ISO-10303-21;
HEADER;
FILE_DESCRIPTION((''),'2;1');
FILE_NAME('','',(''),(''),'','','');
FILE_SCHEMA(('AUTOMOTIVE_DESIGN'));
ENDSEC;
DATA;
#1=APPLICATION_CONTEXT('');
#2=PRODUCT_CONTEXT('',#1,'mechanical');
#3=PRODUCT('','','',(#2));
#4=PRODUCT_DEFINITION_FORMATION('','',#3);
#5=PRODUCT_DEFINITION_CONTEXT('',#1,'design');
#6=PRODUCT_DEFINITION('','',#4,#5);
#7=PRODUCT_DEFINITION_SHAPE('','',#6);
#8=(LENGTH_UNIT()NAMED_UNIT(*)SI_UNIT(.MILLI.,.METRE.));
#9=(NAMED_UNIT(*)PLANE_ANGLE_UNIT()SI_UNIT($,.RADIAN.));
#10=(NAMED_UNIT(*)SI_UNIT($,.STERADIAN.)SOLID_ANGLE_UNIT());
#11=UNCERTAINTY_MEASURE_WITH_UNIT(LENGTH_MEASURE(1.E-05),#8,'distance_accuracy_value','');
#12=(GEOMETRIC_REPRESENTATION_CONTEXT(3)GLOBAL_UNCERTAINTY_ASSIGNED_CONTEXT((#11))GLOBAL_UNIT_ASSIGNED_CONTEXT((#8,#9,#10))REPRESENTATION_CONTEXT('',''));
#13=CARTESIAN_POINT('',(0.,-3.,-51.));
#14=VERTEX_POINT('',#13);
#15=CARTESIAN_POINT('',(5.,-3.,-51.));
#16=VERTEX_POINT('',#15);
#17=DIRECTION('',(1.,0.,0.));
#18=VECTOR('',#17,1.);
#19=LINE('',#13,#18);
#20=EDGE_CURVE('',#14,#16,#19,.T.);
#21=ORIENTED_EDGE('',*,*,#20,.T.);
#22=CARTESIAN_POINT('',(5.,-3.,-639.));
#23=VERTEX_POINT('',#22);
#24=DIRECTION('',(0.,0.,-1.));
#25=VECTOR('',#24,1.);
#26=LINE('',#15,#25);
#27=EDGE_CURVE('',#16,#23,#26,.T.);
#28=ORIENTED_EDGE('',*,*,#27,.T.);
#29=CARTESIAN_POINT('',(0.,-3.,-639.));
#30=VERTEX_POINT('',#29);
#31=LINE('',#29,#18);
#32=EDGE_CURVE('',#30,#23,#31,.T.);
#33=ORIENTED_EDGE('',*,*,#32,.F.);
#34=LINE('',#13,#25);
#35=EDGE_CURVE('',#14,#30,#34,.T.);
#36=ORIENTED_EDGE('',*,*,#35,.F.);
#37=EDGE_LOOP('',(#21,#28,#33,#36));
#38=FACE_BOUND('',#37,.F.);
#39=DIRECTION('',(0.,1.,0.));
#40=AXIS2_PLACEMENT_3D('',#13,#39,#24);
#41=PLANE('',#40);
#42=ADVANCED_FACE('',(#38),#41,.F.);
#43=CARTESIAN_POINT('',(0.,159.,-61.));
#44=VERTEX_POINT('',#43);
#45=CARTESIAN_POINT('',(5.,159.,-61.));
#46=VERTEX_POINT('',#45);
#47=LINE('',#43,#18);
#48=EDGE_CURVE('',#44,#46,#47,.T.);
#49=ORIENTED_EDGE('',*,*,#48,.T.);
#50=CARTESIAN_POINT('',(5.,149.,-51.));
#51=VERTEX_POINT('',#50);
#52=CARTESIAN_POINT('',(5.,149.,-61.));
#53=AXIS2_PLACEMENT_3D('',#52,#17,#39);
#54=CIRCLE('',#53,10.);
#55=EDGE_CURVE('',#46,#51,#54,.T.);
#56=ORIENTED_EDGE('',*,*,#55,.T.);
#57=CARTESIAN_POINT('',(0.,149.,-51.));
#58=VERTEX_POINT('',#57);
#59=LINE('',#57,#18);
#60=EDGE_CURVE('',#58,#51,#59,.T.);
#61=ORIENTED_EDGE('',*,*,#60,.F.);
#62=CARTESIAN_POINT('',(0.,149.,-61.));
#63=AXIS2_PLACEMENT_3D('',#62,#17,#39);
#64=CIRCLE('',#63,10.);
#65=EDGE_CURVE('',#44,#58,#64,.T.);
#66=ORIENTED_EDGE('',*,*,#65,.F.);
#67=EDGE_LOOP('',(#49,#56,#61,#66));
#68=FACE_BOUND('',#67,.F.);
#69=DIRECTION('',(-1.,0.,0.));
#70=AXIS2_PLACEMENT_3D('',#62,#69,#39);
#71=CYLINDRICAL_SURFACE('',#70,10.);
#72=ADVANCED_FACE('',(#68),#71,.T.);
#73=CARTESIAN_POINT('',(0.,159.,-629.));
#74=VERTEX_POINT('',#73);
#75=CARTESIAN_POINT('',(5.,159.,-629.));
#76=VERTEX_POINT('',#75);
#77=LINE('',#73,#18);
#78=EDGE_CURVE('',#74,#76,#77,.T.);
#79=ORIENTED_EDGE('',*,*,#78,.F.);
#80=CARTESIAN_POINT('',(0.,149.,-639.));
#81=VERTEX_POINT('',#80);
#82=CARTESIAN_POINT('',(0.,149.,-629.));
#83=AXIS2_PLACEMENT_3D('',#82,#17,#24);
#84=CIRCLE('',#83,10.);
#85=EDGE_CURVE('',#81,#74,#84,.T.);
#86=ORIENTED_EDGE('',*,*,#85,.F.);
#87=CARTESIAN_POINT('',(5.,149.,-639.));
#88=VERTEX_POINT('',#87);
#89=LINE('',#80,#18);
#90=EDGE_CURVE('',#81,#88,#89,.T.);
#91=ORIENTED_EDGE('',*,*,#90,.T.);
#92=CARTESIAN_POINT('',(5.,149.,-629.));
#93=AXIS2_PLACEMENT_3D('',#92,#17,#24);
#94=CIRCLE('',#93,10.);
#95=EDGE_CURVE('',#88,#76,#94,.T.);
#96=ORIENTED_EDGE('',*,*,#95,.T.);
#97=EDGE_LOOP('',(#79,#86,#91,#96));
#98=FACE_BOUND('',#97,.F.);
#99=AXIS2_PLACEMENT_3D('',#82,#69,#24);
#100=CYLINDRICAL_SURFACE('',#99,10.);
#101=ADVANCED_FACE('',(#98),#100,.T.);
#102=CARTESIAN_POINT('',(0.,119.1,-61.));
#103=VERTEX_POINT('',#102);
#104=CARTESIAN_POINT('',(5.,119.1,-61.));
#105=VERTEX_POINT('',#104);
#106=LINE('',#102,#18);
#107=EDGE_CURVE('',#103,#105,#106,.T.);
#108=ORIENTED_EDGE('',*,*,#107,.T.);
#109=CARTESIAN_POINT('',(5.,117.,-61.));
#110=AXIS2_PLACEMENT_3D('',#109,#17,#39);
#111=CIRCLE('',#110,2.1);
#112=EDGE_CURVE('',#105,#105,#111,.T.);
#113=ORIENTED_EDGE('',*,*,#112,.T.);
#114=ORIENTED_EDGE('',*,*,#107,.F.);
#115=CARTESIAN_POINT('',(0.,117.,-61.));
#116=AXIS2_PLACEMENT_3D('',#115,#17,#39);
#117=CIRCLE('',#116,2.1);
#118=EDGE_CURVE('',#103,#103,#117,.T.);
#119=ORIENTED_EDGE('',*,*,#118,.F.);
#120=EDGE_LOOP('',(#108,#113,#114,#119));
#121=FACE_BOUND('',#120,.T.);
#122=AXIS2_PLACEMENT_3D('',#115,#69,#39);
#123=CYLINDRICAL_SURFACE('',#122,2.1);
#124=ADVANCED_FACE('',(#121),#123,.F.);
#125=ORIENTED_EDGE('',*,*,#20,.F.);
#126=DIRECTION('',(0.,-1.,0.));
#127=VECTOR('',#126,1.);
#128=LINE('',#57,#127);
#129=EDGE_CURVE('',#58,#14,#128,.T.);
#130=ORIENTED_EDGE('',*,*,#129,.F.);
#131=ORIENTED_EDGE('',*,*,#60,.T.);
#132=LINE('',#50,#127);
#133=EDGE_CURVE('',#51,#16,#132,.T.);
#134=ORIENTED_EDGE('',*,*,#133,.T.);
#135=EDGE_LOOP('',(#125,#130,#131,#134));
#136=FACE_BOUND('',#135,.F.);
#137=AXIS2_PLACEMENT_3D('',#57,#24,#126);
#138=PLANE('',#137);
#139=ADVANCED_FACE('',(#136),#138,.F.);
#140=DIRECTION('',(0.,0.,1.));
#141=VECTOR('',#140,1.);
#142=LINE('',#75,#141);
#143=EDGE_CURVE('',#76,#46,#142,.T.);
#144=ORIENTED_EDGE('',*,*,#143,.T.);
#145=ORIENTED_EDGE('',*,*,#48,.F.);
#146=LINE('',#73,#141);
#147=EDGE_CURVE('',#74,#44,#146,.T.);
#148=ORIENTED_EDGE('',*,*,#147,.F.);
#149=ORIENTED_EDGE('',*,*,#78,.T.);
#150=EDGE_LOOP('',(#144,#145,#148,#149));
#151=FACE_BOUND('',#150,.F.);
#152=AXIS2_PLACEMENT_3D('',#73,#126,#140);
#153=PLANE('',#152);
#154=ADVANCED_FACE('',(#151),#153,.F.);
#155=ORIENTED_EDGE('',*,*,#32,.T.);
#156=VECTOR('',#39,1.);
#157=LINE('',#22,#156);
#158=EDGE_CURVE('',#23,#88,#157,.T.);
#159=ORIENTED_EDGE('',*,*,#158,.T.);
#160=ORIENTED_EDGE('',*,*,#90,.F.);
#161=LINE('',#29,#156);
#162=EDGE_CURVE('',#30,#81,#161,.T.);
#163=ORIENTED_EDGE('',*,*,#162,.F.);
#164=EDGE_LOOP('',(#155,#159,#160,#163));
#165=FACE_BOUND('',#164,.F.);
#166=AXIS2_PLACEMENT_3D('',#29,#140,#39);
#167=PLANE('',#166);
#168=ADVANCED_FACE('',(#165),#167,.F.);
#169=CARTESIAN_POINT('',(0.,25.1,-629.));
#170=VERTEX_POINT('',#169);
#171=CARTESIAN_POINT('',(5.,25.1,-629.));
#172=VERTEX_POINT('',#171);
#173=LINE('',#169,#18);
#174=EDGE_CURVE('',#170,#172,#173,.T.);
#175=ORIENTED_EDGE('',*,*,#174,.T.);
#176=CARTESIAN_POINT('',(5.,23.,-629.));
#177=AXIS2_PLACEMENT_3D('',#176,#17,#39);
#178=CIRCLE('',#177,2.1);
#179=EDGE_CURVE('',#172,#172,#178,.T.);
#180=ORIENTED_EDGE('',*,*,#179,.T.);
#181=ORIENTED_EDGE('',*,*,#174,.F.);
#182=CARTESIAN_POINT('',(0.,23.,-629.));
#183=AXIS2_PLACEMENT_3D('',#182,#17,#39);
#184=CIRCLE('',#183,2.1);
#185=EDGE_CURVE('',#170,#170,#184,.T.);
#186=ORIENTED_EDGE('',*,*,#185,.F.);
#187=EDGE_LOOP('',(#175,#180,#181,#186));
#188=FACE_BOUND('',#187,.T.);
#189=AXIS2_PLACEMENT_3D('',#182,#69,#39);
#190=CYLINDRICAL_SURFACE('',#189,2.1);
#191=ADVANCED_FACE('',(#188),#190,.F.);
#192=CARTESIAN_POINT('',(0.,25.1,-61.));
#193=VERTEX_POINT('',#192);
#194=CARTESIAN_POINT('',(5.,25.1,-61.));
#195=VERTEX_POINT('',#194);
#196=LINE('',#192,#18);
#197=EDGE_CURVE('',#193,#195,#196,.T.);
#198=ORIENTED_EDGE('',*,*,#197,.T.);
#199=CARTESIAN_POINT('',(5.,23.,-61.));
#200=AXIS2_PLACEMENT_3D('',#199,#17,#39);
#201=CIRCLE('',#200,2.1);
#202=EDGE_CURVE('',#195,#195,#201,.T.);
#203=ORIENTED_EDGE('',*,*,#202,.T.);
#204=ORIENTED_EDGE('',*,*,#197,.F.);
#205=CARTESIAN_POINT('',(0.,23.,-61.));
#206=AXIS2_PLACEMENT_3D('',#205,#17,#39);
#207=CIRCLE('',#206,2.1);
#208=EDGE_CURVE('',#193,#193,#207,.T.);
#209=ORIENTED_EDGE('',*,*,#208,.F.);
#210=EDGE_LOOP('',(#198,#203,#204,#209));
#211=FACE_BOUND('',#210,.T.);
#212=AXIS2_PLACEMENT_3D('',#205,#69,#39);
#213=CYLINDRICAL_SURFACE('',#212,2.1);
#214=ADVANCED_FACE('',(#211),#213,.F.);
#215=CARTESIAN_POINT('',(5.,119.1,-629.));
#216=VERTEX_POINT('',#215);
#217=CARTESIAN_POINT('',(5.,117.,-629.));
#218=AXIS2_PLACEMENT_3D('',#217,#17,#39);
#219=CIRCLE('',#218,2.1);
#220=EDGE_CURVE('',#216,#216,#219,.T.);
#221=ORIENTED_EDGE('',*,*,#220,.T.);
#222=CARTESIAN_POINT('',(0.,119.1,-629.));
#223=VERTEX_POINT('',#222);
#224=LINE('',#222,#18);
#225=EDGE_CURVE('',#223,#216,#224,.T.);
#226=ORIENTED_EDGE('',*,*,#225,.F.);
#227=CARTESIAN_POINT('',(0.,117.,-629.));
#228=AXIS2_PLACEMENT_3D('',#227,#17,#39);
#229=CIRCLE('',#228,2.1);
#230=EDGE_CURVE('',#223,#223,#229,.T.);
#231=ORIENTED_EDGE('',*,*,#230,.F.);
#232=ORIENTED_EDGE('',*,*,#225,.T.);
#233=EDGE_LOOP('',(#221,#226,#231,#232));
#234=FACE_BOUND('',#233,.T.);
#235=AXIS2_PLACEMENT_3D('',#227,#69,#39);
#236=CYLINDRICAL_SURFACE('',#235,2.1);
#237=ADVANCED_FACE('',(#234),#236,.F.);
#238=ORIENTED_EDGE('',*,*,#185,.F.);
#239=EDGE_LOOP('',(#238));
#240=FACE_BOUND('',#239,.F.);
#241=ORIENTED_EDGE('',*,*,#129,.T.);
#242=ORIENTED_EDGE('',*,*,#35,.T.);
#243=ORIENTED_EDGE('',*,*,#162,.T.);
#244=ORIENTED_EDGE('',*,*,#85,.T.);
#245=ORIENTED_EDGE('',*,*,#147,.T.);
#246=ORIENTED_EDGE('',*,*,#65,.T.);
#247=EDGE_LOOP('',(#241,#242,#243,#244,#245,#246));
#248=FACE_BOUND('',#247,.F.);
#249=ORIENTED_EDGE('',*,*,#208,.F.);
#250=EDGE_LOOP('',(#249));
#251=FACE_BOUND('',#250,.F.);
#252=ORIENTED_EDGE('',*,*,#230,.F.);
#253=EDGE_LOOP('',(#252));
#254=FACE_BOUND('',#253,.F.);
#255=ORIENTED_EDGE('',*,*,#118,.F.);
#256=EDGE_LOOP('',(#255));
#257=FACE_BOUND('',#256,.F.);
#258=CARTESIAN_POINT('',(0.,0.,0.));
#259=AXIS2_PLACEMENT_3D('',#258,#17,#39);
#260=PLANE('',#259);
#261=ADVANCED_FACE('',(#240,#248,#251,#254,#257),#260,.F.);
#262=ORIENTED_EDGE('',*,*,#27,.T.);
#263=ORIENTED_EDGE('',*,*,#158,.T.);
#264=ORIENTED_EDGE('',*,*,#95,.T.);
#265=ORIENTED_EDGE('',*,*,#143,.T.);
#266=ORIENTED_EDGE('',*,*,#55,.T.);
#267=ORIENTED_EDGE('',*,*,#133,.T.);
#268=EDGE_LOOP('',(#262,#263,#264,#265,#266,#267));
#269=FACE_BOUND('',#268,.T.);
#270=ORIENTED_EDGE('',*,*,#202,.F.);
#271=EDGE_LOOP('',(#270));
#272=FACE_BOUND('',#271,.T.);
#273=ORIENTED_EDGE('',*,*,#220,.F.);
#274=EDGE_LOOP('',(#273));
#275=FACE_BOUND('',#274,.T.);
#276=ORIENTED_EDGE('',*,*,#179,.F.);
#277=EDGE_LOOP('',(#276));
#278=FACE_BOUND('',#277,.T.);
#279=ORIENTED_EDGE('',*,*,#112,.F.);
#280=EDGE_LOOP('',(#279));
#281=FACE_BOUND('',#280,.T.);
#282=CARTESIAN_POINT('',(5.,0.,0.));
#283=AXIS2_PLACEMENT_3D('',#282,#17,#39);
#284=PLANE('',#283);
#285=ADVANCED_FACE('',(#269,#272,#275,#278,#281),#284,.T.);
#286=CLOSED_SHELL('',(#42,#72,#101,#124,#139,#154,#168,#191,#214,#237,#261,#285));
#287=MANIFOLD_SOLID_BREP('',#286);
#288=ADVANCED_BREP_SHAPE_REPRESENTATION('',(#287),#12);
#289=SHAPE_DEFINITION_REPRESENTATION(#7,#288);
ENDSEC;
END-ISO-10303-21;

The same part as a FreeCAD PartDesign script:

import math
import FreeCAD as App
import Part
import Sketcher
Q = App.Units.Quantity

doc = App.newDocument("Part")
body = doc.addObject("PartDesign::Body", "Body")

# Sketch on YZ plane
sketch1 = doc.addObject("Sketcher::SketchObject", "Sketch")
body.addObject(sketch1)
sketch1.AttachmentSupport = (doc.YZ_Plane, [""])
sketch1.MapMode = "FlatFace"
sketch1.addGeometry([
    Part.ArcOfCircle(Part.Circle(App.Vector(149, -61, 0), App.Vector(0, 0, 1), 10), math.radians(0), math.radians(90)),  # 0
    Part.LineSegment(App.Vector(149, -51, 0), App.Vector(-3, -51, 0)),  # 1
    Part.LineSegment(App.Vector(-3, -51, 0), App.Vector(-3, -639, 0)),  # 2
    Part.LineSegment(App.Vector(-3, -639, 0), App.Vector(149, -639, 0)),  # 3
    Part.ArcOfCircle(Part.Circle(App.Vector(149, -629, 0), App.Vector(0, 0, 1), 10), math.radians(-90), math.radians(0)),  # 4
    Part.LineSegment(App.Vector(159, -629, 0), App.Vector(159, -61, 0)),  # 5
], False)
sketch1.addConstraint([
    Sketcher.Constraint("Tangent", 0, 2, 1, 1),
    Sketcher.Constraint("Coincident", 1, 2, 2, 1),
    Sketcher.Constraint("Coincident", 2, 2, 3, 1),
    Sketcher.Constraint("Tangent", 3, 2, 4, 1),
    Sketcher.Constraint("Tangent", 4, 2, 5, 1),
    Sketcher.Constraint("Tangent", 5, 2, 0, 1),
    Sketcher.Constraint("Horizontal", 1),
    Sketcher.Constraint("Vertical", 2),
    Sketcher.Constraint("Horizontal", 3),
    Sketcher.Constraint("Vertical", 5),
    Sketcher.Constraint("Equal", 0, 4),
    Sketcher.Constraint("Radius", 0, Q("10 mm")),
    Sketcher.Constraint("DistanceY", 2, 2, 2, 1, Q("588 mm")),
    Sketcher.Constraint("DistanceX", 2, 2, 4, 2, Q("162 mm")),
    Sketcher.Constraint("DistanceX", -1, 1, 0, 3, Q("149 mm")),
    Sketcher.Constraint("DistanceY", 0, 3, -1, 1, Q("61 mm")),
])
pad1 = doc.addObject("PartDesign::Pad", "Pad")
body.addObject(pad1)
pad1.Profile = sketch1
pad1.Length = 5

# Sketch on YZ plane
sketch2 = doc.addObject("Sketcher::SketchObject", "Sketch001")
body.addObject(sketch2)
sketch2.AttachmentSupport = (doc.YZ_Plane, [""])
sketch2.MapMode = "FlatFace"
sketch2.addGeometry([
    Part.Circle(App.Vector(117, -61, 0), App.Vector(0, 0, 1), 2.1),
    Part.Circle(App.Vector(117, -629, 0), App.Vector(0, 0, 1), 2.1),
    Part.Circle(App.Vector(23, -629, 0), App.Vector(0, 0, 1), 2.1),
    Part.Circle(App.Vector(23, -61, 0), App.Vector(0, 0, 1), 2.1),
], False)
sketch2.addConstraint([
    Sketcher.Constraint("Equal", 0, 1),
    Sketcher.Constraint("Equal", 1, 2),
    Sketcher.Constraint("Equal", 2, 3),
    Sketcher.Constraint("Horizontal", 1, 3, 2, 3),
    Sketcher.Constraint("Horizontal", 0, 3, 3, 3),
    Sketcher.Constraint("Vertical", 0, 3, 1, 3),
    Sketcher.Constraint("Vertical", 2, 3, 3, 3),
    Sketcher.Constraint("Diameter", 0, Q("4.2 mm")),
    Sketcher.Constraint("DistanceY", 1, 3, 0, 3, Q("568 mm")),
    Sketcher.Constraint("DistanceX", 2, 3, 1, 3, Q("94 mm")),
    Sketcher.Constraint("DistanceX", -1, 1, 0, 3, Q("117 mm")),
    Sketcher.Constraint("DistanceY", 0, 3, -1, 1, Q("61 mm")),
])
pocket1 = doc.addObject("PartDesign::Pocket", "Pocket")
body.addObject(pocket1)
pocket1.Profile = sketch2
pocket1.Length = 5
pocket1.Reversed = True

doc.recompute()
